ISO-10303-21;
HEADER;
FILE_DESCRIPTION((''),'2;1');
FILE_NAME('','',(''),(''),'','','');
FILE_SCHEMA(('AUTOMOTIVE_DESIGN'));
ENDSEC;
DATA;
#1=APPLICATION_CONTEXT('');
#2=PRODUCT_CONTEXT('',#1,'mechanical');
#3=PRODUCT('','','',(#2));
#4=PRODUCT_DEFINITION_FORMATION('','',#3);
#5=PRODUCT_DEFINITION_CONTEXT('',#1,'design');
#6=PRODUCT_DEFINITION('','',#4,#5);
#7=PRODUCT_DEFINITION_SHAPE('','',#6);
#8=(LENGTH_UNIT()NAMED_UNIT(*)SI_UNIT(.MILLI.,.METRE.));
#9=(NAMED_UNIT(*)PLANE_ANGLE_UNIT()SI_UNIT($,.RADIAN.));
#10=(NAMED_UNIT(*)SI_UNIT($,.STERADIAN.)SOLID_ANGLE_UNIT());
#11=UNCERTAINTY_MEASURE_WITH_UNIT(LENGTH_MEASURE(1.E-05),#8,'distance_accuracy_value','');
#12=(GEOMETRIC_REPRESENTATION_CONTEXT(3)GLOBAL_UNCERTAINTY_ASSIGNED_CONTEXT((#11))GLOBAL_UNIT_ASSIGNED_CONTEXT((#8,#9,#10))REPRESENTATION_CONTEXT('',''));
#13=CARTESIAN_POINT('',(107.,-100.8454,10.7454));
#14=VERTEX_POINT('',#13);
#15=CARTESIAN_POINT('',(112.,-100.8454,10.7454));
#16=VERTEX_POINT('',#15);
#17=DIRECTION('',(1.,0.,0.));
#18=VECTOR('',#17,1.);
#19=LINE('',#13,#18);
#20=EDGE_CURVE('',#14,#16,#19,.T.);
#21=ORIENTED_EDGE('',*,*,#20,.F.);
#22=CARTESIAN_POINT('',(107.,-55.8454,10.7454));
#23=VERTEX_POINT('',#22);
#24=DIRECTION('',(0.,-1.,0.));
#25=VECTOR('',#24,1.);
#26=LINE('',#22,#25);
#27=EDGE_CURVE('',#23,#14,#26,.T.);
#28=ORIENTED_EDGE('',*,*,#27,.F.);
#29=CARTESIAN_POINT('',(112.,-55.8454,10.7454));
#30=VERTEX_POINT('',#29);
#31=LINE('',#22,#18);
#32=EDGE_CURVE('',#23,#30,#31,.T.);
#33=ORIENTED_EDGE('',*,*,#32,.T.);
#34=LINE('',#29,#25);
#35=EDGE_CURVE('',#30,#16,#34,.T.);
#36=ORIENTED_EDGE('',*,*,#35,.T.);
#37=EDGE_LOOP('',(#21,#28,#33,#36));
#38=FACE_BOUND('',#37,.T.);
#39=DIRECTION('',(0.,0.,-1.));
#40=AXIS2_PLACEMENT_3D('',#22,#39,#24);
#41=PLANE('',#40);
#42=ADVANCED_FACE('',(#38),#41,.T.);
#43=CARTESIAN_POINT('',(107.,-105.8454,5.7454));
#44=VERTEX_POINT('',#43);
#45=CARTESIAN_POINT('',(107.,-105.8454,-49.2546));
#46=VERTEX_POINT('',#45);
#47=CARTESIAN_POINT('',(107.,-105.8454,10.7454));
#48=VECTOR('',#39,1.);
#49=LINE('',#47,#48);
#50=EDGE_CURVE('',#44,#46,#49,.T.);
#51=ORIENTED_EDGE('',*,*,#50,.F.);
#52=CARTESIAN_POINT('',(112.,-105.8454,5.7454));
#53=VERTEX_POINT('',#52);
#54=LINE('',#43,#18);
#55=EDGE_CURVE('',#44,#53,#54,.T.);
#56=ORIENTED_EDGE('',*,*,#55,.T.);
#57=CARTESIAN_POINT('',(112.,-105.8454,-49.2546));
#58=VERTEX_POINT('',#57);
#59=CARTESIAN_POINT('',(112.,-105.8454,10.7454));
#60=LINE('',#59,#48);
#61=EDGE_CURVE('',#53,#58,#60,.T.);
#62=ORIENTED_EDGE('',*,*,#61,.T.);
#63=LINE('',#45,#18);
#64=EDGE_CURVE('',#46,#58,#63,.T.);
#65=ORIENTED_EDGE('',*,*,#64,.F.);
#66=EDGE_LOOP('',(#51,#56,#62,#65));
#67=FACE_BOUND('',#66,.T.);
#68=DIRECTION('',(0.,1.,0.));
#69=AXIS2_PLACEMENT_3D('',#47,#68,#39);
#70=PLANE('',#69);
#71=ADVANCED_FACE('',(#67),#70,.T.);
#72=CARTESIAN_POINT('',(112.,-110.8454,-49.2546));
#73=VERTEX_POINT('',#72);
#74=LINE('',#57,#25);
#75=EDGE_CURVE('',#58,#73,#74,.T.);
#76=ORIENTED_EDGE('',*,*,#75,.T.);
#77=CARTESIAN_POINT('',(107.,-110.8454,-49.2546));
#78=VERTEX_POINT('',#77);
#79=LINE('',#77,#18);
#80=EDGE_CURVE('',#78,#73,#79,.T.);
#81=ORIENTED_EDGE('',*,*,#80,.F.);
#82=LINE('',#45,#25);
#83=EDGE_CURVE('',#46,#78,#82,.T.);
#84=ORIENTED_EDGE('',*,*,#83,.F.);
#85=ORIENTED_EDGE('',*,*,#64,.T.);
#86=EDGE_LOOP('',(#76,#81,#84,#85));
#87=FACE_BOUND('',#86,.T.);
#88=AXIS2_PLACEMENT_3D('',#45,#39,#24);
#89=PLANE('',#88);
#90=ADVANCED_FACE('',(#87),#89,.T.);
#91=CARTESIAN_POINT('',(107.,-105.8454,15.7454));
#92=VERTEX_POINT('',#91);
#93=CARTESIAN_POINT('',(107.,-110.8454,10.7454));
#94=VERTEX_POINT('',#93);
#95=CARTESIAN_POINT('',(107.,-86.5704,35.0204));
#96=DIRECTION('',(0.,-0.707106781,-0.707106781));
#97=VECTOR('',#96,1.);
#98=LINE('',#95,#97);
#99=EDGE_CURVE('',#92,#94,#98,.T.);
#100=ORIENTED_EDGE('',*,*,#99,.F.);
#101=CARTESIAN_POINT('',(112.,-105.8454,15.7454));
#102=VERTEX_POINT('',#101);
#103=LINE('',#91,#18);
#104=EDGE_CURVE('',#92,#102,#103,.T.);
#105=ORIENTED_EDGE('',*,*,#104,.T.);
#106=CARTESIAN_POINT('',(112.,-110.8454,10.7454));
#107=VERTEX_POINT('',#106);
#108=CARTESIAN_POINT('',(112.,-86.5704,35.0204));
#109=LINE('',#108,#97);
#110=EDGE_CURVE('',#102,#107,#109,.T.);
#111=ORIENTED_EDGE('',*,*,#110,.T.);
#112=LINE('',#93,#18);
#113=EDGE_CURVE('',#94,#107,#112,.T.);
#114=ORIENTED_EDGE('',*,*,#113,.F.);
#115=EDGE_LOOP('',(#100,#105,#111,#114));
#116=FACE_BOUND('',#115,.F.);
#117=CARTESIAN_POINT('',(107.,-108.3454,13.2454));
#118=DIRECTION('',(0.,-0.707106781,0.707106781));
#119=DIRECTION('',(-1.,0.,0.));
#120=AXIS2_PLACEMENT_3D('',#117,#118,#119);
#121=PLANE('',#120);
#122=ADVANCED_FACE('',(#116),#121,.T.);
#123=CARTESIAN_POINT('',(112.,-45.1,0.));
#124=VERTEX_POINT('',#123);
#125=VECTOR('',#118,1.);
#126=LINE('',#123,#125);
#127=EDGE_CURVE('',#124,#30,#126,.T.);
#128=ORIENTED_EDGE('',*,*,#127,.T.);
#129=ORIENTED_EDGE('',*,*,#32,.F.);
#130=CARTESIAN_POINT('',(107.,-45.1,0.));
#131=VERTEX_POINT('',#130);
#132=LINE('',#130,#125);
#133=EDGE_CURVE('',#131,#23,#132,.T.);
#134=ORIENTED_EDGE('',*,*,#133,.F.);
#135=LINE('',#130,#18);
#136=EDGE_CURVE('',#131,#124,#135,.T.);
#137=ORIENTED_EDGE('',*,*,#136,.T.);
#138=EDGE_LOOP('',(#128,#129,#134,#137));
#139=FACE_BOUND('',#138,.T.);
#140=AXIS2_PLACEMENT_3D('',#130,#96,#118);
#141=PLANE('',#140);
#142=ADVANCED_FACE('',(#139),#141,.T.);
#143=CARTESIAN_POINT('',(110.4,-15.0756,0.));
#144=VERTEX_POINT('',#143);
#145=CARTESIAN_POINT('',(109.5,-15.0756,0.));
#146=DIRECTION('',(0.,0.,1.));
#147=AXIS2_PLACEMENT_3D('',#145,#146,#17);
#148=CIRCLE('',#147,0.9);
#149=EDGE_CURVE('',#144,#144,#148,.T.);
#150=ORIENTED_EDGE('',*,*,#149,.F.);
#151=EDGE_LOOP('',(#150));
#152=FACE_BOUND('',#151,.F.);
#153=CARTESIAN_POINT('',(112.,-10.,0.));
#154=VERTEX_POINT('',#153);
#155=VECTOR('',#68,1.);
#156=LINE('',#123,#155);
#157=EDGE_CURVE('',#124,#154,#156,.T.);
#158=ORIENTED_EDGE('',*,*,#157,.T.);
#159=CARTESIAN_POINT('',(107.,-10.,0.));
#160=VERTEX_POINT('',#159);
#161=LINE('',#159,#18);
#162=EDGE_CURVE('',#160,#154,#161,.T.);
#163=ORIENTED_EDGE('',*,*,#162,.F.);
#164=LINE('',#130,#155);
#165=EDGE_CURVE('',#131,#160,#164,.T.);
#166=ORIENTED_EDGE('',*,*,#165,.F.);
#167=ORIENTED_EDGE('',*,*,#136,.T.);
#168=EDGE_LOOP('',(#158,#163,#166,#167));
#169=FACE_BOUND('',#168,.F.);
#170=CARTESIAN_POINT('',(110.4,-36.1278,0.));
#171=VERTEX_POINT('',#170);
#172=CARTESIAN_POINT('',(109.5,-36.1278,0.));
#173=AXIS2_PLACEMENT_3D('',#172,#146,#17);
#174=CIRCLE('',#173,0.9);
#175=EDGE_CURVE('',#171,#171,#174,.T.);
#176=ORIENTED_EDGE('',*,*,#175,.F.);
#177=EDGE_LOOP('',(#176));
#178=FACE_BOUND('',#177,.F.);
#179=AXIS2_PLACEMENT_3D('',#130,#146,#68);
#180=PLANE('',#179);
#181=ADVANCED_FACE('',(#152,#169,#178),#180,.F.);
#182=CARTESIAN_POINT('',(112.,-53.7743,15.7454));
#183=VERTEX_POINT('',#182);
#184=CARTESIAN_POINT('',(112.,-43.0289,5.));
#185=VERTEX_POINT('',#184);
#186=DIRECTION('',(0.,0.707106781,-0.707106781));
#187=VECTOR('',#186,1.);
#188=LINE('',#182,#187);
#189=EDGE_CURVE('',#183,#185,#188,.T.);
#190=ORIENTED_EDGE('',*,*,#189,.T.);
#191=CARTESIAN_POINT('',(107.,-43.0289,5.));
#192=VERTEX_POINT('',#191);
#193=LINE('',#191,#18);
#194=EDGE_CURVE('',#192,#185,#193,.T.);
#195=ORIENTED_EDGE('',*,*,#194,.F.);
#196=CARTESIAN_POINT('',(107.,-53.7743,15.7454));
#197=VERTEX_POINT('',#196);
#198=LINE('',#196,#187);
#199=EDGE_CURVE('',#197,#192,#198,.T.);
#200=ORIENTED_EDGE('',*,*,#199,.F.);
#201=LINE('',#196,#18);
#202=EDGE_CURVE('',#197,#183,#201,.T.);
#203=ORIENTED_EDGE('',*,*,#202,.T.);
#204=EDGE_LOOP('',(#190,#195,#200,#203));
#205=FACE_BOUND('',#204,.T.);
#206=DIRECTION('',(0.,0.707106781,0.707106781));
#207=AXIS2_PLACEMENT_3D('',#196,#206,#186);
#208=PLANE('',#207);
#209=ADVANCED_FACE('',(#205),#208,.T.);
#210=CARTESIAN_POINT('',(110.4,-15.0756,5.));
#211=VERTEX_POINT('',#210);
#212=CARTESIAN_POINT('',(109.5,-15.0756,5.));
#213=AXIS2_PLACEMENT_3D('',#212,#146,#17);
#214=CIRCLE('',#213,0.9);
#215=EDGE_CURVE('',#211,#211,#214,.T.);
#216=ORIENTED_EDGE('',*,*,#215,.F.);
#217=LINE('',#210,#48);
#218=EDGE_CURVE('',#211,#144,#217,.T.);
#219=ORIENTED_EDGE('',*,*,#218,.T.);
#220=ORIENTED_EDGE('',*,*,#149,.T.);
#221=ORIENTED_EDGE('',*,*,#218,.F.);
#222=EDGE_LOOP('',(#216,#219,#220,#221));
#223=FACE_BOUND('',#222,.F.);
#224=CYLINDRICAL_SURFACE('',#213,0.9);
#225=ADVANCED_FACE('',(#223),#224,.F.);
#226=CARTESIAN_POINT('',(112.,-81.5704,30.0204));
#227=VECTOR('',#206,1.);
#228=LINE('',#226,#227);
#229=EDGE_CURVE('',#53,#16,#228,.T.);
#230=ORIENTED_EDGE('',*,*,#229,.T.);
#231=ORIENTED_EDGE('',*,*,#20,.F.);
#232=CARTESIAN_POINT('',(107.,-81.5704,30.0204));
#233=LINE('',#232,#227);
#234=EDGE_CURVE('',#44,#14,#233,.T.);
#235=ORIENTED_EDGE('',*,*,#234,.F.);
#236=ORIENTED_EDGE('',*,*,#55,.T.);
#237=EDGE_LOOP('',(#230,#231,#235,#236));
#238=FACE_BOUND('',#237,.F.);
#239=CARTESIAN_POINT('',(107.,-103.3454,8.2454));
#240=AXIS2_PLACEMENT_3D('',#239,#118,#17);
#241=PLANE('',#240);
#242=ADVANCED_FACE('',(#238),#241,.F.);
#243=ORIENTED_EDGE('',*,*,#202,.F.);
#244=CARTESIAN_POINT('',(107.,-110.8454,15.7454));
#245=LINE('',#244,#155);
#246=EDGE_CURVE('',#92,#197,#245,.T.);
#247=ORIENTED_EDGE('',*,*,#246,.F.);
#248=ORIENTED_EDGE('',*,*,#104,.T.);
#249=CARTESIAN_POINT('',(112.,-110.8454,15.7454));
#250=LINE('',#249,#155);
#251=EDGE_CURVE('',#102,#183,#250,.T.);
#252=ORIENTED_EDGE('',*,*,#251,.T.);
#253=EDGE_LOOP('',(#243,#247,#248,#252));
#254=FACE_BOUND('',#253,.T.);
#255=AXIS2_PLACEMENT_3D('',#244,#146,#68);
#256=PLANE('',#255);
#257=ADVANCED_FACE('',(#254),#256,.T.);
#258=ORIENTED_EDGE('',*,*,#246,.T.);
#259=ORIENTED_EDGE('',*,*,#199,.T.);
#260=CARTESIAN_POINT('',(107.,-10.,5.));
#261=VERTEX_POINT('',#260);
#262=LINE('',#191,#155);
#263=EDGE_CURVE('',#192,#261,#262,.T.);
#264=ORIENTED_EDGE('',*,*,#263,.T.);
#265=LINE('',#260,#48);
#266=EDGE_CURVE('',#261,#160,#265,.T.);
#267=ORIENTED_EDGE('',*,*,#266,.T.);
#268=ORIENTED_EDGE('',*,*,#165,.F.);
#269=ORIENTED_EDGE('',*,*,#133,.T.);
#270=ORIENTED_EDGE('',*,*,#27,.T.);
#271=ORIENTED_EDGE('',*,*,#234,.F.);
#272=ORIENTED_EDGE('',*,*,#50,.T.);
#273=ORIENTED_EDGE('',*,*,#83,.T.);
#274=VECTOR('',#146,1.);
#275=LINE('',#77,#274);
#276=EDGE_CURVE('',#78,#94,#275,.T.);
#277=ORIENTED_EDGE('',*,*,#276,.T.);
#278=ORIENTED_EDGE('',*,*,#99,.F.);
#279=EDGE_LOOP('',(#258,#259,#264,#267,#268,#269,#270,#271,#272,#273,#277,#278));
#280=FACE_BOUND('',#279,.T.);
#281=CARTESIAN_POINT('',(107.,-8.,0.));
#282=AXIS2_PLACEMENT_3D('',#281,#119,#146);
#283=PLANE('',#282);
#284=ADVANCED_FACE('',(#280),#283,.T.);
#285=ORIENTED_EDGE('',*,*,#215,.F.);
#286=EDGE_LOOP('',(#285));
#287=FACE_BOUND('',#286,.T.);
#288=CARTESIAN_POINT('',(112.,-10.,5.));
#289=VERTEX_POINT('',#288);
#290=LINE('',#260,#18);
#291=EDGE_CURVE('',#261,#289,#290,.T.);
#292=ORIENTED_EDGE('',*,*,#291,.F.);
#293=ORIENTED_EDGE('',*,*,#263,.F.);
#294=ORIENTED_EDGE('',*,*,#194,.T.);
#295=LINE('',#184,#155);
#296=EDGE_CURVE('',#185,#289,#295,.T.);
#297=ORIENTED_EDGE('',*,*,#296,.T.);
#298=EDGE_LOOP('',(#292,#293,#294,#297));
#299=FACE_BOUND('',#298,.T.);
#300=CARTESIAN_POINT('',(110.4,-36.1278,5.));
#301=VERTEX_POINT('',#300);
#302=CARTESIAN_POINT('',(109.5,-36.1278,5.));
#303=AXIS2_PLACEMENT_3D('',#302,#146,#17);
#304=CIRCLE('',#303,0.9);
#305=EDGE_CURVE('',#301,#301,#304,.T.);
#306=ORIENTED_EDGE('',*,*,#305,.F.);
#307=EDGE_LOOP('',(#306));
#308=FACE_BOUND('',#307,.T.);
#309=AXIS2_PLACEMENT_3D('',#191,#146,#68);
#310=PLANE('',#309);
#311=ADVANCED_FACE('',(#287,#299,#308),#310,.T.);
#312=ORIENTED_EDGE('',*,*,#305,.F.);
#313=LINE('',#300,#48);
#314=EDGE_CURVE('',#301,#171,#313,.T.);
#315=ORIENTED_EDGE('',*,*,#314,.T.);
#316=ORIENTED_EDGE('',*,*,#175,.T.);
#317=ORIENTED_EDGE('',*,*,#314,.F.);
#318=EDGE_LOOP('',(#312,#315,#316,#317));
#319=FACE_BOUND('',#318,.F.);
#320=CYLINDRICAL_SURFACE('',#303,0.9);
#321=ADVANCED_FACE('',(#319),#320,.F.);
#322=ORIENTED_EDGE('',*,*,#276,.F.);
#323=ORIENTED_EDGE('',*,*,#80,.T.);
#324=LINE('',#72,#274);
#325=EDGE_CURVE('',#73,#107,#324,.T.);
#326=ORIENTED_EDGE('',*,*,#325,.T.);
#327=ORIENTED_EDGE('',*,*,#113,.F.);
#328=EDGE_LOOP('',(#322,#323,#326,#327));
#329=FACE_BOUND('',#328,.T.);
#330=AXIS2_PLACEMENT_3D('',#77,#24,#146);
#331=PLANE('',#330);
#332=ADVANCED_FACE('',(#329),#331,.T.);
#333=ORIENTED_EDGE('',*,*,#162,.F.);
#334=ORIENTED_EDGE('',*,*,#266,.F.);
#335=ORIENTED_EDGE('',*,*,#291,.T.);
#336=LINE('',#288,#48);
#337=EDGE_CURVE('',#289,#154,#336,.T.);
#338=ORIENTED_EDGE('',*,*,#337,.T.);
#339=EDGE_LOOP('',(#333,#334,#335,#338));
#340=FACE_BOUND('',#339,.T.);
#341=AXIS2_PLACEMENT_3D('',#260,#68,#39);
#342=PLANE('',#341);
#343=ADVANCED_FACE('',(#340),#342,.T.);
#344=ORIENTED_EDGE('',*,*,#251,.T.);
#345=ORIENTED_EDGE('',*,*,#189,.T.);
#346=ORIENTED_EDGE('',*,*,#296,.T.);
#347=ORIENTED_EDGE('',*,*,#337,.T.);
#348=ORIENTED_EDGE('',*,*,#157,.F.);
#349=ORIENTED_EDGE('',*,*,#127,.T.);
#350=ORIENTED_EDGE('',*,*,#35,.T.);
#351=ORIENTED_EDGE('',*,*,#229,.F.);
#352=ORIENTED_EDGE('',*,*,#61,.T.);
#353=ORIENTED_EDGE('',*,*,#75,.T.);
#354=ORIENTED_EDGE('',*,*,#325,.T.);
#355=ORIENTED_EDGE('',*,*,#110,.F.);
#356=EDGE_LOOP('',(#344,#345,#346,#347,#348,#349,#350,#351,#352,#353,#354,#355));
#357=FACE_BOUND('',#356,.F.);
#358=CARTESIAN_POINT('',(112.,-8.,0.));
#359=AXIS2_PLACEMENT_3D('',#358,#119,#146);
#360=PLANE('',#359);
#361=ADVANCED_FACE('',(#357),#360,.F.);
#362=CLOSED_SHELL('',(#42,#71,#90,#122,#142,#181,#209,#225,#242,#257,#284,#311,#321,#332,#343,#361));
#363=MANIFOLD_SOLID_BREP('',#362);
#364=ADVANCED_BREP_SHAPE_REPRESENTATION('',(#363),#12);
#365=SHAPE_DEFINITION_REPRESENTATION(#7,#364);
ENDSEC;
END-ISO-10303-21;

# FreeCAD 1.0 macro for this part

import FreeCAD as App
import Part
import Sketcher
from FreeCAD import Vector
Q = App.Units.Quantity


def edges_at(feature, points):
    """Names of the edges that pass closest to the given points."""
    edges = feature.Shape.Edges
    near = lambda p: min(range(len(edges)), key=lambda i: edges[i].distToShape(Part.Vertex(*p))[0])
    return sorted({f"Edge{near(p) + 1}" for p in points})

doc = App.newDocument("Part")
body = doc.addObject("PartDesign::Body", "Body")

# Sketch on YZ plane
sketch1 = doc.addObject("Sketcher::SketchObject", "Sketch")
body.addObject(sketch1)
sketch1.AttachmentSupport = (doc.YZ_Plane, [""])
sketch1.MapMode = "FlatFace"
sketch1.AttachmentOffset = App.Placement(Vector(0, 0, 107), App.Rotation())
sketch1.addGeometry([
    Part.LineSegment(Vector(-10, 5, 0), Vector(-10, 0, 0)),  # 0
    Part.LineSegment(Vector(-10, 0, 0), Vector(-45, 0, 0)),  # 1
    Part.LineSegment(Vector(-45, 0, 0), Vector(-56, 11, 0)),  # 2
    Part.LineSegment(Vector(-56, 11, 0), Vector(-106, 11, 0)),  # 3
    Part.LineSegment(Vector(-106, 11, 0), Vector(-106, -49, 0)),  # 4
    Part.LineSegment(Vector(-106, -49, 0), Vector(-111, -49, 0)),  # 5
    Part.LineSegment(Vector(-111, -49, 0), Vector(-111, 16, 0)),  # 6
    Part.LineSegment(Vector(-111, 16, 0), Vector(-54, 16, 0)),  # 7
    Part.LineSegment(Vector(-54, 16, 0), Vector(-43, 5, 0)),  # 8
    Part.LineSegment(Vector(-43, 5, 0), Vector(-10, 5, 0)),  # 9
], False)
sketch1.addConstraint([
    Sketcher.Constraint("Coincident", 0, 2, 1, 1),
    Sketcher.Constraint("Coincident", 1, 2, 2, 1),
    Sketcher.Constraint("Coincident", 2, 2, 3, 1),
    Sketcher.Constraint("Coincident", 3, 2, 4, 1),
    Sketcher.Constraint("Coincident", 4, 2, 5, 1),
    Sketcher.Constraint("Coincident", 5, 2, 6, 1),
    Sketcher.Constraint("Coincident", 6, 2, 7, 1),
    Sketcher.Constraint("Coincident", 7, 2, 8, 1),
    Sketcher.Constraint("Coincident", 8, 2, 9, 1),
    Sketcher.Constraint("Coincident", 9, 2, 0, 1),
    Sketcher.Constraint("Vertical", 0),
    Sketcher.Constraint("Horizontal", 1),
    Sketcher.Constraint("Horizontal", 3),
    Sketcher.Constraint("Vertical", 4),
    Sketcher.Constraint("Horizontal", 5),
    Sketcher.Constraint("Vertical", 6),
    Sketcher.Constraint("Horizontal", 7),
    Sketcher.Constraint("Horizontal", 9),
    Sketcher.Constraint("PointOnObject", 0, 2, -1),
    Sketcher.Constraint("Parallel", 2, 8),
    Sketcher.Constraint("Equal", 5, 0),
    Sketcher.Constraint("Equal", 2, 8),
    Sketcher.Constraint("DistanceX", 3, 2, 3, 1, 50.0),
    Sketcher.Constraint("DistanceX", 5, 2, 5, 1, 5.0),
    Sketcher.Constraint("DistanceY", 4, 2, 4, 1, 60.0),
    Sketcher.Constraint("Angle", 8, Q("-45 deg")),
    Sketcher.Constraint("DistanceX", 1, 2, 1, 1, 35.1),
    Sketcher.Constraint("DistanceX", 0, 2, -1, 1, 10.0),
    Sketcher.Constraint("DistanceX", 7, 1, 7, 2, 57.071),
    Sketcher.Constraint("Distance", 2, 15.1963),
])
pad1 = doc.addObject("PartDesign::Pad", "Pad")
body.addObject(pad1)
pad1.Profile = sketch1
pad1.Length = 5

# Sketch on XY plane
sketch2 = doc.addObject("Sketcher::SketchObject", "Sketch001")
body.addObject(sketch2)
sketch2.AttachmentSupport = (doc.XY_Plane, [""])
sketch2.MapMode = "FlatFace"
sketch2.AttachmentOffset = App.Placement(Vector(0, 0, 5), App.Rotation())
sketch2.addGeometry([
    Part.Circle(Vector(109.5, -15.1, 0), Vector(0, 0, 1), 0.9),
    Part.Circle(Vector(109.5, -36.1, 0), Vector(0, 0, 1), 0.9),
], False)
sketch2.addConstraint([
    Sketcher.Constraint("Equal", 0, 1),
    Sketcher.Constraint("Vertical", 0, 3, 1, 3),
    Sketcher.Constraint("Diameter", 0, 1.8),
    Sketcher.Constraint("DistanceX", -1, 1, 0, 3, 109.5),
    Sketcher.Constraint("DistanceY", 0, 3, -1, 1, 15.0756),
    Sketcher.Constraint("DistanceY", 1, 3, -1, 1, 36.1278),
])
pocket1 = doc.addObject("PartDesign::Pocket", "Pocket")
body.addObject(pocket1)
pocket1.Profile = sketch2
pocket1.Type = "ThroughAll"
doc.recompute()

chamfer = doc.addObject("PartDesign::Chamfer", "Chamfer")
body.addObject(chamfer)
chamfer.Base = (pocket1, edges_at(pocket1, [(109.5, -110.845, 15.745), (109.5, -105.845, 10.745)]))
chamfer.Size = 5

doc.recompute()
